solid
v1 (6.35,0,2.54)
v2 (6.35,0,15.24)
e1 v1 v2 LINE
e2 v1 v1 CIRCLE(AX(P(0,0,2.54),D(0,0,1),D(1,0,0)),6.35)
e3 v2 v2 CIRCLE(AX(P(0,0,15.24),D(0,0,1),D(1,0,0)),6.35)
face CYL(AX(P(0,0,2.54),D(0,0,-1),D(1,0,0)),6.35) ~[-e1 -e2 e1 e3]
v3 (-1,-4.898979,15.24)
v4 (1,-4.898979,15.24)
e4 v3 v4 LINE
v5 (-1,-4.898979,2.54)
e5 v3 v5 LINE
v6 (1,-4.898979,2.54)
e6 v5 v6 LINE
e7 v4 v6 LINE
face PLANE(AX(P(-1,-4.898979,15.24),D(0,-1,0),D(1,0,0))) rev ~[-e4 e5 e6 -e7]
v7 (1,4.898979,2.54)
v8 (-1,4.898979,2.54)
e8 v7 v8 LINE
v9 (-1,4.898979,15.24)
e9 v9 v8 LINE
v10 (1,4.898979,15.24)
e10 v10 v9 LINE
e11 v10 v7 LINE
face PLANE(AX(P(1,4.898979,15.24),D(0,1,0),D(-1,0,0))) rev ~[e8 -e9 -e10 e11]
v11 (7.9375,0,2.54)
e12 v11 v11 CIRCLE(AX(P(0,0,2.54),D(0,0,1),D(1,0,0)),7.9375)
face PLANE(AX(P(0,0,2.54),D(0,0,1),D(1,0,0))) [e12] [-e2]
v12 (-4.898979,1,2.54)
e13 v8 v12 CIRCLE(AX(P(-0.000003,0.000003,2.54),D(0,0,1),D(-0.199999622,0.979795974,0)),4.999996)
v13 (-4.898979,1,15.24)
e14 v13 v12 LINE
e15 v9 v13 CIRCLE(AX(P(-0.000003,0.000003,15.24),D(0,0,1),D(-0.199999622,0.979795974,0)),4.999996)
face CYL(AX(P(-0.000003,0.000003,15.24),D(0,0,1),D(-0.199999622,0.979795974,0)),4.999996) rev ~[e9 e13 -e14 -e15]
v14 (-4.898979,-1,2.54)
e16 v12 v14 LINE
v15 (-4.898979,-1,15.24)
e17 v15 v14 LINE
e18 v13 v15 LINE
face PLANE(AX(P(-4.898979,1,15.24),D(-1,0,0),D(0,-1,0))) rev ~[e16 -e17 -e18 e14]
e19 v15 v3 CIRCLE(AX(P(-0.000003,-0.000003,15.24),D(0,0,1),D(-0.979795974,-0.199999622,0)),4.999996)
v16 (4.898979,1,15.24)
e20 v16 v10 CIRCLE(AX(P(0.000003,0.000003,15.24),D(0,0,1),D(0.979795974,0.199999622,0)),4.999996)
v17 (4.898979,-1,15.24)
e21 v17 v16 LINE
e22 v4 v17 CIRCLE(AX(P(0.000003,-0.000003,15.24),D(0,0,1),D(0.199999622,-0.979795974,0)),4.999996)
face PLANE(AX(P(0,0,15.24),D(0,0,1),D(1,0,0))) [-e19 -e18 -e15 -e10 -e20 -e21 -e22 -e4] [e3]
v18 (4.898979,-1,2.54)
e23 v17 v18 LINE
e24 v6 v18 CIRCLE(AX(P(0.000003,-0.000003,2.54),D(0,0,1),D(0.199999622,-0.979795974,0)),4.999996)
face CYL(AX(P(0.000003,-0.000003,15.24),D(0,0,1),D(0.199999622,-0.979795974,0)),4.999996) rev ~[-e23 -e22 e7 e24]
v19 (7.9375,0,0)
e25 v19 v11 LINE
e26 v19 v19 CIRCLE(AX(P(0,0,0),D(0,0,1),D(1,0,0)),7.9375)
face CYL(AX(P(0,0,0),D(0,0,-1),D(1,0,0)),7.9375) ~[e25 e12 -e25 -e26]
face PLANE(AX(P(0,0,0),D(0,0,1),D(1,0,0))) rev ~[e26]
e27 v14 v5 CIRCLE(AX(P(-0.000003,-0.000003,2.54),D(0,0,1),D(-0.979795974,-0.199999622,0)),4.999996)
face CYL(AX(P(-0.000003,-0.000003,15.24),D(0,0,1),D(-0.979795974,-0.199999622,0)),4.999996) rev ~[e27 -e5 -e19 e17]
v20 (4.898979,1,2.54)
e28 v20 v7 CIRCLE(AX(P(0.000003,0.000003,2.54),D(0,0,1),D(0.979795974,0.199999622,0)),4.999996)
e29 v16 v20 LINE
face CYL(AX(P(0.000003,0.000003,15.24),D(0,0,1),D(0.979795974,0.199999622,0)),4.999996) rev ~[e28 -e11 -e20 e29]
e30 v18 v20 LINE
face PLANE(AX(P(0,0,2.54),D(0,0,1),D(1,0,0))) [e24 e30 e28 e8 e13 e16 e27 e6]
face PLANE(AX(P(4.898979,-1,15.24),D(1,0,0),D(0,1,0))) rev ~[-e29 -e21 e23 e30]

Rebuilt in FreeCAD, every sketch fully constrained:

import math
import FreeCAD as App
import Part
import Sketcher
Q = App.Units.Quantity

doc = App.newDocument("Part")
body = doc.addObject("PartDesign::Body", "Body")

sketch1 = body.newObject("Sketcher::SketchObject", "Sketch")
sketch1.AttachmentSupport = (doc.getObject("XY_Plane"), [""])
sketch1.MapMode = "FlatFace"
sketch1.addGeometry(Part.Circle(App.Vector(0, 0, 0), App.Vector(0, 0, 1), 8), False)
sketch1.addConstraint(Sketcher.Constraint("Coincident", 0, 3, -1, 1))
sketch1.addConstraint(Sketcher.Constraint("Diameter", 0, Q("0.625 in")))
pad1 = body.newObject("PartDesign::Pad", "Pad")
pad1.Profile = sketch1
pad1.Length = Q("0.1 in")

sketch2 = body.newObject("Sketcher::SketchObject", "Sketch001")
sketch2.AttachmentSupport = (doc.getObject("XY_Plane"), [""])
sketch2.MapMode = "FlatFace"
sketch2.AttachmentOffset = App.Placement(App.Vector(0, 0, 0.1 * 25.4), App.Rotation())
sketch2.addGeometry(Part.Circle(App.Vector(0, 0, 0), App.Vector(0, 0, 1), 6), False)
sketch2.addConstraint(Sketcher.Constraint("Coincident", 0, 3, -1, 1))
sketch2.addConstraint(Sketcher.Constraint("Diameter", 0, Q("0.5 in")))
pad2 = body.newObject("PartDesign::Pad", "Pad001")
pad2.Profile = sketch2
pad2.Length = Q("0.5 in")

sketch3 = body.newObject("Sketcher::SketchObject", "Sketch002")
sketch3.AttachmentSupport = (doc.getObject("XY_Plane"), [""])
sketch3.MapMode = "FlatFace"
sketch3.AttachmentOffset = App.Placement(App.Vector(0, 0, 0.6 * 25.4), App.Rotation())
sketch3.addGeometry(Part.LineSegment(App.Vector(1, 4.9, 0), App.Vector(-1, 4.9, 0)), False)
sketch3.addGeometry(Part.ArcOfCircle(Part.Circle(App.Vector(0, 0, 0), App.Vector(0, 0, 1), 5), math.radians(102), math.radians(168)), False)
sketch3.addGeometry(Part.LineSegment(App.Vector(-4.9, 1, 0), App.Vector(-4.9, -1, 0)), False)
sketch3.addGeometry(Part.ArcOfCircle(Part.Circle(App.Vector(0, 0, 0), App.Vector(0, 0, 1), 5), math.radians(-168), math.radians(-102)), False)
sketch3.addGeometry(Part.LineSegment(App.Vector(-1, -4.9, 0), App.Vector(1, -4.9, 0)), False)
sketch3.addGeometry(Part.ArcOfCircle(Part.Circle(App.Vector(0, 0, 0), App.Vector(0, 0, 1), 5), math.radians(-78), math.radians(-12)), False)
sketch3.addGeometry(Part.LineSegment(App.Vector(4.9, -1, 0), App.Vector(4.9, 1, 0)), False)
sketch3.addGeometry(Part.ArcOfCircle(Part.Circle(App.Vector(0, 0, 0), App.Vector(0, 0, 1), 5), math.radians(12), math.radians(78)), False)
sketch3.addConstraint(Sketcher.Constraint("Coincident", 0, 2, 1, 1))
sketch3.addConstraint(Sketcher.Constraint("Coincident", 1, 2, 2, 1))
sketch3.addConstraint(Sketcher.Constraint("Coincident", 2, 2, 3, 1))
sketch3.addConstraint(Sketcher.Constraint("Coincident", 3, 2, 4, 1))
sketch3.addConstraint(Sketcher.Constraint("Coincident", 4, 2, 5, 1))
sketch3.addConstraint(Sketcher.Constraint("Coincident", 5, 2, 6, 1))
sketch3.addConstraint(Sketcher.Constraint("Coincident", 6, 2, 7, 1))
sketch3.addConstraint(Sketcher.Constraint("Coincident", 7, 2, 0, 1))
sketch3.addConstraint(Sketcher.Constraint("Horizontal", 0))
sketch3.addConstraint(Sketcher.Constraint("Vertical", 2))
sketch3.addConstraint(Sketcher.Constraint("Horizontal", 4))
sketch3.addConstraint(Sketcher.Constraint("Vertical", 6))
sketch3.addConstraint(Sketcher.Constraint("Coincident", 1, 3, -1, 1))
sketch3.addConstraint(Sketcher.Constraint("Coincident", 3, 3, -1, 1))
sketch3.addConstraint(Sketcher.Constraint("Coincident", 5, 3, -1, 1))
sketch3.addConstraint(Sketcher.Constraint("Coincident", 7, 3, -1, 1))
sketch3.addConstraint(Sketcher.Constraint("Equal", 1, 3))
sketch3.addConstraint(Sketcher.Constraint("Equal", 3, 5))
sketch3.addConstraint(Sketcher.Constraint("Equal", 5, 7))
sketch3.addConstraint(Sketcher.Constraint("Horizontal", 2, 2, 5, 2))
sketch3.addConstraint(Sketcher.Constraint("Vertical", 0, 2, 3, 2))
sketch3.addConstraint(Sketcher.Constraint("Equal", 4, 2))
sketch3.addConstraint(Sketcher.Constraint("DistanceX", 0, 2, 0, 1, 2.0))
sketch3.addConstraint(Sketcher.Constraint("Radius", 1, 4.999996))
pocket1 = body.newObject("PartDesign::Pocket", "Pocket")
pocket1.Profile = sketch3
pocket1.Length = Q("0.5 in")

doc.recompute()
